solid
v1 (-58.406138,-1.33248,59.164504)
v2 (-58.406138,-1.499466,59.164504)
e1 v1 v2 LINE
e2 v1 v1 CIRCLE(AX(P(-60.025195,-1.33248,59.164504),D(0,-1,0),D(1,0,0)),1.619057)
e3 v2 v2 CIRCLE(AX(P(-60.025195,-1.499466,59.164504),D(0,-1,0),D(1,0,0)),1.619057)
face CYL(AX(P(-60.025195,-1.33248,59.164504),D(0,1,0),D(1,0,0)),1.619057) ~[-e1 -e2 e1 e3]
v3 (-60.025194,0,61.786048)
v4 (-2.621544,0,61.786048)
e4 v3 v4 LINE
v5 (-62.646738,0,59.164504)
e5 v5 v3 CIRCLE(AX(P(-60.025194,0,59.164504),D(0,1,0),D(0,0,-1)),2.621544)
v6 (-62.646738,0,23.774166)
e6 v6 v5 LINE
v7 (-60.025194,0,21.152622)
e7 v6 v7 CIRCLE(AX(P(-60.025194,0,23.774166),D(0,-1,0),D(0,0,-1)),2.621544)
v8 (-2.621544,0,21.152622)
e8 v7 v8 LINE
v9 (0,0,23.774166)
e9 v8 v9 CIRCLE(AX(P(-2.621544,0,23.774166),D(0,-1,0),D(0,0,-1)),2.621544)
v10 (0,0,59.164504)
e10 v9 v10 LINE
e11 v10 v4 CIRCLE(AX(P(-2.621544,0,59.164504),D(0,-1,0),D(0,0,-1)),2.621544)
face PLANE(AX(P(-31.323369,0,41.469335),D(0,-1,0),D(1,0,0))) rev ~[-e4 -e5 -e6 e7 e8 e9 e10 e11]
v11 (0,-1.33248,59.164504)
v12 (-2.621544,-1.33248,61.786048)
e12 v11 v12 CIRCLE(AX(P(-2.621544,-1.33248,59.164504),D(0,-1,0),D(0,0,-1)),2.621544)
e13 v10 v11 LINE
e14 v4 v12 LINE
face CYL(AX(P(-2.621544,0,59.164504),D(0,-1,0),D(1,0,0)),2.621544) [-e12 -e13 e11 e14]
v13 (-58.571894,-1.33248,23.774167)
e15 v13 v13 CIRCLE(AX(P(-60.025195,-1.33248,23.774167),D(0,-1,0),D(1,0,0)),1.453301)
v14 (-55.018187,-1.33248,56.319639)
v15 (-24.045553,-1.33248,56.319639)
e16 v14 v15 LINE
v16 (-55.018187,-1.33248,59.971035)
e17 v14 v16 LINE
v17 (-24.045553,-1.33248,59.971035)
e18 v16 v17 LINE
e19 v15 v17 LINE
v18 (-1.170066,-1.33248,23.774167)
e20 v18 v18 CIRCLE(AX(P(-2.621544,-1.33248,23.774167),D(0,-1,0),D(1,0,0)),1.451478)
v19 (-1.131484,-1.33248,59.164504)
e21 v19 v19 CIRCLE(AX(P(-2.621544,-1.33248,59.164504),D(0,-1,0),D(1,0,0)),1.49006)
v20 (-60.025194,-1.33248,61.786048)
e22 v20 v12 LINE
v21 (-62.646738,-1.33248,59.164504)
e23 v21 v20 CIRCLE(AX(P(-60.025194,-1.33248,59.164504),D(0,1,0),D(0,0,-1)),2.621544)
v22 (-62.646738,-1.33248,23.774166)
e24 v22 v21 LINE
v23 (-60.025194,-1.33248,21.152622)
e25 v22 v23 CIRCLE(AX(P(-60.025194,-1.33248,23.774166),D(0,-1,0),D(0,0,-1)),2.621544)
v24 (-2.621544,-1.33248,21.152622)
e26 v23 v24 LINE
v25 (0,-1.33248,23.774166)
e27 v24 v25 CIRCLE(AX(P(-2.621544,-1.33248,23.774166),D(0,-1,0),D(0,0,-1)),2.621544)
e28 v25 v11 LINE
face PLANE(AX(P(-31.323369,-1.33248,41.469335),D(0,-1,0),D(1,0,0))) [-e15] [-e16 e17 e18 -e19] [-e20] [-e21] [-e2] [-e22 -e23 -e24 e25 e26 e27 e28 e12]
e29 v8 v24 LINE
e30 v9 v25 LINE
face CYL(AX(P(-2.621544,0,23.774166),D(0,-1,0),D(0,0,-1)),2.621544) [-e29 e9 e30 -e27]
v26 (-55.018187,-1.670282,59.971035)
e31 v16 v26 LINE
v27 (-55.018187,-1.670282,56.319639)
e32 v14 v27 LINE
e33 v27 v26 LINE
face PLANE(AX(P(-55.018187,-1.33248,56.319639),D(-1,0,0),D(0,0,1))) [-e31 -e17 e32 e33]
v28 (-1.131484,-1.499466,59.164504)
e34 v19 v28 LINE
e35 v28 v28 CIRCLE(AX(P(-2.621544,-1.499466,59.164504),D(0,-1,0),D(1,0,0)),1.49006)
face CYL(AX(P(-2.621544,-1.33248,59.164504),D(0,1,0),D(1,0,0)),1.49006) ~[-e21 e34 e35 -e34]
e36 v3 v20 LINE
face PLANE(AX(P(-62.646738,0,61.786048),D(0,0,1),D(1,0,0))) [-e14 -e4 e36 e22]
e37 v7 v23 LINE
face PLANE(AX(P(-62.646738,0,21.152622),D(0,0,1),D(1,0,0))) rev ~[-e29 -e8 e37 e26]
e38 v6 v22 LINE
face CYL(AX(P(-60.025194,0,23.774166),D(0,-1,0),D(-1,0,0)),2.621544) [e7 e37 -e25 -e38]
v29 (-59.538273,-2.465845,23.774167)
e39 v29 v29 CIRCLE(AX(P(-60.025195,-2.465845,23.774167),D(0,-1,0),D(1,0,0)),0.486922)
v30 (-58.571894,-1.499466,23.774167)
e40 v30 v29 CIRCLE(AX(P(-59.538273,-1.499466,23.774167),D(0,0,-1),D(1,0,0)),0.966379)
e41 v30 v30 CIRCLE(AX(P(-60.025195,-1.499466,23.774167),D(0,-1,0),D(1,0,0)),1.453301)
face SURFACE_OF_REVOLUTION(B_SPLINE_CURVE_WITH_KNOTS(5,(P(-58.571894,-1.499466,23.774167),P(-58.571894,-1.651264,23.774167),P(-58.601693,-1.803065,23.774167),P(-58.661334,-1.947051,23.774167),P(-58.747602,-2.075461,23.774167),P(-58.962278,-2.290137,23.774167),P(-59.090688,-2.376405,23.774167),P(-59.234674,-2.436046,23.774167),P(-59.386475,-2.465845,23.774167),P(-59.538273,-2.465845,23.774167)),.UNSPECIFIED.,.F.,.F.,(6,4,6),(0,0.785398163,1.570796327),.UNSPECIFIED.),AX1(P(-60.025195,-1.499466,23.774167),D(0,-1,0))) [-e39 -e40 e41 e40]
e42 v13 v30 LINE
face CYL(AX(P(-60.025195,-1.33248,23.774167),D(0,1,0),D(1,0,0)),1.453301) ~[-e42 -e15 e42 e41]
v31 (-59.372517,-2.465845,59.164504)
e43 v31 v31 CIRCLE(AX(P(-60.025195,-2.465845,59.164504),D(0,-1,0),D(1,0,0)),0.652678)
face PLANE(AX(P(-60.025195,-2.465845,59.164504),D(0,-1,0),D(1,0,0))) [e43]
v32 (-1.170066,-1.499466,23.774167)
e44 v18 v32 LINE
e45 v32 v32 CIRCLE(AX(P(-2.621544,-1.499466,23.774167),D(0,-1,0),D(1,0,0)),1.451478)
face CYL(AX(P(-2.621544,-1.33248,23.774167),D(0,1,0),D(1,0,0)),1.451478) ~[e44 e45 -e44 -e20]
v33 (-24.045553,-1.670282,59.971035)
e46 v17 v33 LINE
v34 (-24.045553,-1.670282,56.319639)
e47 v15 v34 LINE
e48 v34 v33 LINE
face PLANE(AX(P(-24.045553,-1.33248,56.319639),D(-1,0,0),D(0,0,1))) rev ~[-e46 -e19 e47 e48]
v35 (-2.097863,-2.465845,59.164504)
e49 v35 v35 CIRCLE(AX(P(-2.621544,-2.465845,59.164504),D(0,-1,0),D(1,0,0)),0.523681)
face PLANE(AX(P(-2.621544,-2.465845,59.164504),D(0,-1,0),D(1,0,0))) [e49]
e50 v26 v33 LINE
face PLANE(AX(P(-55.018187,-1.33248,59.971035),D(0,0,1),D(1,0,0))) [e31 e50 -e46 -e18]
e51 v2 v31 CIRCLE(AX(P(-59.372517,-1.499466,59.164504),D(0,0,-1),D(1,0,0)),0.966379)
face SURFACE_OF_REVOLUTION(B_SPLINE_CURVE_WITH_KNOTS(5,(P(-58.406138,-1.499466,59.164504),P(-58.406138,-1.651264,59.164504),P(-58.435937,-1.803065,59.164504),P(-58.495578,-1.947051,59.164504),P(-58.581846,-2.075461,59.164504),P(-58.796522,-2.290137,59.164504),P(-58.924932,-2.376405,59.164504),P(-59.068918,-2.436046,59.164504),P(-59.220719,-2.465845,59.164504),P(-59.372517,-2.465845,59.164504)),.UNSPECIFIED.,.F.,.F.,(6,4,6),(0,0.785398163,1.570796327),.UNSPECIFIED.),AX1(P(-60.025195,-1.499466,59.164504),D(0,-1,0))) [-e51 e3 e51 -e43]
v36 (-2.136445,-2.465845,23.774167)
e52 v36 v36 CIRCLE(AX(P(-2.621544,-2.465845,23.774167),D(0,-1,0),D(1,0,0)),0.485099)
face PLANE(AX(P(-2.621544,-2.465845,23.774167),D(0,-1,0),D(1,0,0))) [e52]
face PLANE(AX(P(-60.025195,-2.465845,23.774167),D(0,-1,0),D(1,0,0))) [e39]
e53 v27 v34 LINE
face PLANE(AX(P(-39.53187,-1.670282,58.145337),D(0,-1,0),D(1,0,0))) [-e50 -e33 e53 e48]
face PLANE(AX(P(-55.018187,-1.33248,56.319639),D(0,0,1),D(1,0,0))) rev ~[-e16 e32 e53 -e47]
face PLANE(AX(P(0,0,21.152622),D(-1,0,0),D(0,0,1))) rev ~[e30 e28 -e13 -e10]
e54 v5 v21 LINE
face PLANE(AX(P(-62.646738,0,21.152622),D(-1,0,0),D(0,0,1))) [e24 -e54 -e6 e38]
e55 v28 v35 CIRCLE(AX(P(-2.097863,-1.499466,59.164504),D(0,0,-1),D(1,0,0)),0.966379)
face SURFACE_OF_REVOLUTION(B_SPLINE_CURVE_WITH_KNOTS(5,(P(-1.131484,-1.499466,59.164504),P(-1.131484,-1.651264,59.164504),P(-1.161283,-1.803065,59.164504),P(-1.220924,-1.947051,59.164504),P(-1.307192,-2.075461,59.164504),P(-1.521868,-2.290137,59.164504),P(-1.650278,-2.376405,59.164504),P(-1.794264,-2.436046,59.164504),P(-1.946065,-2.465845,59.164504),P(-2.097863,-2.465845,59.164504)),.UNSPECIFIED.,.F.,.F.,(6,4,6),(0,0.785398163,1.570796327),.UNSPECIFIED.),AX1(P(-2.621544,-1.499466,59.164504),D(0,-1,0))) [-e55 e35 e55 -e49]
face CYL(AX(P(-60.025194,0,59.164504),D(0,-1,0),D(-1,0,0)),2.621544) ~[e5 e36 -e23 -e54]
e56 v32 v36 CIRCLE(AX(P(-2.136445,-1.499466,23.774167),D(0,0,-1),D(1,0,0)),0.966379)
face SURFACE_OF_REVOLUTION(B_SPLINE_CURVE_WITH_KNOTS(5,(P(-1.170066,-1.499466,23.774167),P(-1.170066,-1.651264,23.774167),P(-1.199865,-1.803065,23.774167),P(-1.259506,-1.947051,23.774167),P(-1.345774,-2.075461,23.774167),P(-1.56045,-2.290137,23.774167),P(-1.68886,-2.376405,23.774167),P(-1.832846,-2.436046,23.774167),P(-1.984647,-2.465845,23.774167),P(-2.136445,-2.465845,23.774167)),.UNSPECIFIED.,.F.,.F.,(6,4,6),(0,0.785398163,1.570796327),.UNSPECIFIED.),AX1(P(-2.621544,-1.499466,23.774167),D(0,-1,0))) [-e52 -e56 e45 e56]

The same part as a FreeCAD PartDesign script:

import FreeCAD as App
import Part
import Sketcher

V = App.Vector


def edges_at(feature, points):
    """Names of the edges that pass closest to the given points."""
    edges = feature.Shape.Edges
    near = lambda p: min(range(len(edges)), key=lambda i: edges[i].distToShape(Part.Vertex(*p))[0])
    return sorted({f"Edge{near(p) + 1}" for p in points})

doc = App.newDocument("Part")
params = doc.addObject("Spreadsheet::Sheet", "Params")
for row, (alias, value) in enumerate([
    ("pad1_length", "1.33248 mm"),
    ("fillet_radius", "2.621544 mm"),
    ("pad2_length", "1.133365 mm"),
    ("fillet2_radius", "0.966379 mm"),
    ("pad3_length", "0.337802 mm"),
], start=1):
    params.set(f"A{row}", alias)
    params.set(f"B{row}", "=" + value)
    params.setAlias(f"B{row}", alias)

body = doc.addObject("PartDesign::Body", "Body")

# Sketch on XZ plane
sketch1 = body.newObject("Sketcher::SketchObject", "Sketch")
sketch1.AttachmentSupport = (doc.getObject("XZ_Plane"), [""])
sketch1.MapMode = "FlatFace"
sketch1.addGeometry([
    Part.LineSegment(V(-62.646738, 61.786048, 0), V(-62.646738, 21.152622, 0)),
    Part.LineSegment(V(-62.646738, 21.152622, 0), V(0, 21.152622, 0)),
    Part.LineSegment(V(0, 21.152622, 0), V(0, 61.786048, 0)),
    Part.LineSegment(V(0, 61.786048, 0), V(-62.646738, 61.786048, 0)),
], False)
sketch1.addConstraint([
    Sketcher.Constraint("Coincident", 0, 2, 1, 1),
    Sketcher.Constraint("Coincident", 1, 2, 2, 1),
    Sketcher.Constraint("Coincident", 2, 2, 3, 1),
    Sketcher.Constraint("Coincident", 3, 2, 0, 1),
    Sketcher.Constraint("Vertical", 0),
    Sketcher.Constraint("Horizontal", 1),
    Sketcher.Constraint("Vertical", 2),
    Sketcher.Constraint("Horizontal", 3),
    Sketcher.Constraint("PointOnObject", 1, 2, -2),
    Sketcher.Constraint("DistanceX", 1, 1, 1, 2, 62.646739),
    Sketcher.Constraint("DistanceY", 0, 2, 0, 1, 40.633425),
    Sketcher.Constraint("DistanceY", -1, 1, 0, 2, 21.152622),
])
pad1 = body.newObject("PartDesign::Pad", "Pad")
pad1.Profile = sketch1
pad1.setExpression("Length", "Params.pad1_length")
doc.recompute()

fillet = body.newObject("PartDesign::Fillet", "Fillet")
fillet.Base = (pad1, edges_at(pad1, [
    (-62.647, -0.666, 21.153),
    (-62.647, -0.666, 61.786),
    (0, -0.666, 61.786),
    (0, -0.666, 21.153),
]))
fillet.setExpression("Radius", "Params.fillet_radius")

# Sketch on XZ plane
sketch2 = body.newObject("Sketcher::SketchObject", "Sketch001")
sketch2.AttachmentSupport = (doc.getObject("XZ_Plane"), [""])
sketch2.MapMode = "FlatFace"
sketch2.AttachmentOffset = App.Placement(V(0, 0, 1.33248), App.Rotation())
sketch2.addGeometry([
    Part.Circle(V(-2.621544, 59.164504, 0), V(0, 0, 1), 1.49006),
    Part.Circle(V(-60.025195, 23.774167, 0), V(0, 0, 1), 1.453301),
    Part.Circle(V(-60.025195, 59.164504, 0), V(0, 0, 1), 1.619057),
    Part.Circle(V(-2.621544, 23.774167, 0), V(0, 0, 1), 1.451478),
], False)
sketch2.addConstraint([
    Sketcher.Constraint("Horizontal", 0, 3, 2, 3),
    Sketcher.Constraint("Horizontal", 1, 3, 3, 3),
    Sketcher.Constraint("Vertical", 1, 3, 2, 3),
    Sketcher.Constraint("Vertical", 0, 3, 3, 3),
    Sketcher.Constraint("Diameter", 1, 2.906602),
    Sketcher.Constraint("Diameter", 0, 2.98012),
    Sketcher.Constraint("Diameter", 2, 3.238114),
    Sketcher.Constraint("Diameter", 3, 2.902956),
    Sketcher.Constraint("DistanceX", 1, 3, 0, 3, 57.403651),
    Sketcher.Constraint("DistanceX", 0, 3, -1, 1, 2.621544),
    Sketcher.Constraint("DistanceY", -1, 1, 0, 3, 59.164504),
    Sketcher.Constraint("DistanceY", -1, 1, 1, 3, 23.774167),
])
pad2 = body.newObject("PartDesign::Pad", "Pad001")
pad2.Profile = sketch2
pad2.setExpression("Length", "Params.pad2_length")
doc.recompute()

fillet2 = body.newObject("PartDesign::Fillet", "Fillet001")
fillet2.Base = (pad2, edges_at(pad2, [
    (-4.073, -2.466, 23.774),
    (-4.112, -2.466, 59.165),
    (-61.478, -2.466, 23.774),
    (-61.644, -2.466, 59.165),
]))
fillet2.setExpression("Radius", "Params.fillet2_radius")

# Sketch on XZ plane
sketch3 = body.newObject("Sketcher::SketchObject", "Sketch002")
sketch3.AttachmentSupport = (doc.getObject("XZ_Plane"), [""])
sketch3.MapMode = "FlatFace"
sketch3.AttachmentOffset = App.Placement(V(0, 0, 1.33248), App.Rotation())
sketch3.addGeometry([
    Part.LineSegment(V(-55.018187, 59.971035, 0), V(-55.018187, 56.319639, 0)),
    Part.LineSegment(V(-55.018187, 56.319639, 0), V(-24.045553, 56.319639, 0)),
    Part.LineSegment(V(-24.045553, 56.319639, 0), V(-24.045553, 59.971035, 0)),
    Part.LineSegment(V(-24.045553, 59.971035, 0), V(-55.018187, 59.971035, 0)),
], False)
sketch3.addConstraint([
    Sketcher.Constraint("Coincident", 0, 2, 1, 1),
    Sketcher.Constraint("Coincident", 1, 2, 2, 1),
    Sketcher.Constraint("Coincident", 2, 2, 3, 1),
    Sketcher.Constraint("Coincident", 3, 2, 0, 1),
    Sketcher.Constraint("Vertical", 0),
    Sketcher.Constraint("Horizontal", 1),
    Sketcher.Constraint("Vertical", 2),
    Sketcher.Constraint("Horizontal", 3),
    Sketcher.Constraint("DistanceX", 1, 1, 1, 2, 30.972634),
    Sketcher.Constraint("DistanceY", 0, 2, 0, 1, 3.651396),
    Sketcher.Constraint("DistanceY", -1, 1, 0, 2, 56.319639),
    Sketcher.Constraint("DistanceX", 0, 2, -1, 1, 55.018187),
])
pad3 = body.newObject("PartDesign::Pad", "Pad002")
pad3.Profile = sketch3
pad3.setExpression("Length", "Params.pad3_length")

doc.recompute()
